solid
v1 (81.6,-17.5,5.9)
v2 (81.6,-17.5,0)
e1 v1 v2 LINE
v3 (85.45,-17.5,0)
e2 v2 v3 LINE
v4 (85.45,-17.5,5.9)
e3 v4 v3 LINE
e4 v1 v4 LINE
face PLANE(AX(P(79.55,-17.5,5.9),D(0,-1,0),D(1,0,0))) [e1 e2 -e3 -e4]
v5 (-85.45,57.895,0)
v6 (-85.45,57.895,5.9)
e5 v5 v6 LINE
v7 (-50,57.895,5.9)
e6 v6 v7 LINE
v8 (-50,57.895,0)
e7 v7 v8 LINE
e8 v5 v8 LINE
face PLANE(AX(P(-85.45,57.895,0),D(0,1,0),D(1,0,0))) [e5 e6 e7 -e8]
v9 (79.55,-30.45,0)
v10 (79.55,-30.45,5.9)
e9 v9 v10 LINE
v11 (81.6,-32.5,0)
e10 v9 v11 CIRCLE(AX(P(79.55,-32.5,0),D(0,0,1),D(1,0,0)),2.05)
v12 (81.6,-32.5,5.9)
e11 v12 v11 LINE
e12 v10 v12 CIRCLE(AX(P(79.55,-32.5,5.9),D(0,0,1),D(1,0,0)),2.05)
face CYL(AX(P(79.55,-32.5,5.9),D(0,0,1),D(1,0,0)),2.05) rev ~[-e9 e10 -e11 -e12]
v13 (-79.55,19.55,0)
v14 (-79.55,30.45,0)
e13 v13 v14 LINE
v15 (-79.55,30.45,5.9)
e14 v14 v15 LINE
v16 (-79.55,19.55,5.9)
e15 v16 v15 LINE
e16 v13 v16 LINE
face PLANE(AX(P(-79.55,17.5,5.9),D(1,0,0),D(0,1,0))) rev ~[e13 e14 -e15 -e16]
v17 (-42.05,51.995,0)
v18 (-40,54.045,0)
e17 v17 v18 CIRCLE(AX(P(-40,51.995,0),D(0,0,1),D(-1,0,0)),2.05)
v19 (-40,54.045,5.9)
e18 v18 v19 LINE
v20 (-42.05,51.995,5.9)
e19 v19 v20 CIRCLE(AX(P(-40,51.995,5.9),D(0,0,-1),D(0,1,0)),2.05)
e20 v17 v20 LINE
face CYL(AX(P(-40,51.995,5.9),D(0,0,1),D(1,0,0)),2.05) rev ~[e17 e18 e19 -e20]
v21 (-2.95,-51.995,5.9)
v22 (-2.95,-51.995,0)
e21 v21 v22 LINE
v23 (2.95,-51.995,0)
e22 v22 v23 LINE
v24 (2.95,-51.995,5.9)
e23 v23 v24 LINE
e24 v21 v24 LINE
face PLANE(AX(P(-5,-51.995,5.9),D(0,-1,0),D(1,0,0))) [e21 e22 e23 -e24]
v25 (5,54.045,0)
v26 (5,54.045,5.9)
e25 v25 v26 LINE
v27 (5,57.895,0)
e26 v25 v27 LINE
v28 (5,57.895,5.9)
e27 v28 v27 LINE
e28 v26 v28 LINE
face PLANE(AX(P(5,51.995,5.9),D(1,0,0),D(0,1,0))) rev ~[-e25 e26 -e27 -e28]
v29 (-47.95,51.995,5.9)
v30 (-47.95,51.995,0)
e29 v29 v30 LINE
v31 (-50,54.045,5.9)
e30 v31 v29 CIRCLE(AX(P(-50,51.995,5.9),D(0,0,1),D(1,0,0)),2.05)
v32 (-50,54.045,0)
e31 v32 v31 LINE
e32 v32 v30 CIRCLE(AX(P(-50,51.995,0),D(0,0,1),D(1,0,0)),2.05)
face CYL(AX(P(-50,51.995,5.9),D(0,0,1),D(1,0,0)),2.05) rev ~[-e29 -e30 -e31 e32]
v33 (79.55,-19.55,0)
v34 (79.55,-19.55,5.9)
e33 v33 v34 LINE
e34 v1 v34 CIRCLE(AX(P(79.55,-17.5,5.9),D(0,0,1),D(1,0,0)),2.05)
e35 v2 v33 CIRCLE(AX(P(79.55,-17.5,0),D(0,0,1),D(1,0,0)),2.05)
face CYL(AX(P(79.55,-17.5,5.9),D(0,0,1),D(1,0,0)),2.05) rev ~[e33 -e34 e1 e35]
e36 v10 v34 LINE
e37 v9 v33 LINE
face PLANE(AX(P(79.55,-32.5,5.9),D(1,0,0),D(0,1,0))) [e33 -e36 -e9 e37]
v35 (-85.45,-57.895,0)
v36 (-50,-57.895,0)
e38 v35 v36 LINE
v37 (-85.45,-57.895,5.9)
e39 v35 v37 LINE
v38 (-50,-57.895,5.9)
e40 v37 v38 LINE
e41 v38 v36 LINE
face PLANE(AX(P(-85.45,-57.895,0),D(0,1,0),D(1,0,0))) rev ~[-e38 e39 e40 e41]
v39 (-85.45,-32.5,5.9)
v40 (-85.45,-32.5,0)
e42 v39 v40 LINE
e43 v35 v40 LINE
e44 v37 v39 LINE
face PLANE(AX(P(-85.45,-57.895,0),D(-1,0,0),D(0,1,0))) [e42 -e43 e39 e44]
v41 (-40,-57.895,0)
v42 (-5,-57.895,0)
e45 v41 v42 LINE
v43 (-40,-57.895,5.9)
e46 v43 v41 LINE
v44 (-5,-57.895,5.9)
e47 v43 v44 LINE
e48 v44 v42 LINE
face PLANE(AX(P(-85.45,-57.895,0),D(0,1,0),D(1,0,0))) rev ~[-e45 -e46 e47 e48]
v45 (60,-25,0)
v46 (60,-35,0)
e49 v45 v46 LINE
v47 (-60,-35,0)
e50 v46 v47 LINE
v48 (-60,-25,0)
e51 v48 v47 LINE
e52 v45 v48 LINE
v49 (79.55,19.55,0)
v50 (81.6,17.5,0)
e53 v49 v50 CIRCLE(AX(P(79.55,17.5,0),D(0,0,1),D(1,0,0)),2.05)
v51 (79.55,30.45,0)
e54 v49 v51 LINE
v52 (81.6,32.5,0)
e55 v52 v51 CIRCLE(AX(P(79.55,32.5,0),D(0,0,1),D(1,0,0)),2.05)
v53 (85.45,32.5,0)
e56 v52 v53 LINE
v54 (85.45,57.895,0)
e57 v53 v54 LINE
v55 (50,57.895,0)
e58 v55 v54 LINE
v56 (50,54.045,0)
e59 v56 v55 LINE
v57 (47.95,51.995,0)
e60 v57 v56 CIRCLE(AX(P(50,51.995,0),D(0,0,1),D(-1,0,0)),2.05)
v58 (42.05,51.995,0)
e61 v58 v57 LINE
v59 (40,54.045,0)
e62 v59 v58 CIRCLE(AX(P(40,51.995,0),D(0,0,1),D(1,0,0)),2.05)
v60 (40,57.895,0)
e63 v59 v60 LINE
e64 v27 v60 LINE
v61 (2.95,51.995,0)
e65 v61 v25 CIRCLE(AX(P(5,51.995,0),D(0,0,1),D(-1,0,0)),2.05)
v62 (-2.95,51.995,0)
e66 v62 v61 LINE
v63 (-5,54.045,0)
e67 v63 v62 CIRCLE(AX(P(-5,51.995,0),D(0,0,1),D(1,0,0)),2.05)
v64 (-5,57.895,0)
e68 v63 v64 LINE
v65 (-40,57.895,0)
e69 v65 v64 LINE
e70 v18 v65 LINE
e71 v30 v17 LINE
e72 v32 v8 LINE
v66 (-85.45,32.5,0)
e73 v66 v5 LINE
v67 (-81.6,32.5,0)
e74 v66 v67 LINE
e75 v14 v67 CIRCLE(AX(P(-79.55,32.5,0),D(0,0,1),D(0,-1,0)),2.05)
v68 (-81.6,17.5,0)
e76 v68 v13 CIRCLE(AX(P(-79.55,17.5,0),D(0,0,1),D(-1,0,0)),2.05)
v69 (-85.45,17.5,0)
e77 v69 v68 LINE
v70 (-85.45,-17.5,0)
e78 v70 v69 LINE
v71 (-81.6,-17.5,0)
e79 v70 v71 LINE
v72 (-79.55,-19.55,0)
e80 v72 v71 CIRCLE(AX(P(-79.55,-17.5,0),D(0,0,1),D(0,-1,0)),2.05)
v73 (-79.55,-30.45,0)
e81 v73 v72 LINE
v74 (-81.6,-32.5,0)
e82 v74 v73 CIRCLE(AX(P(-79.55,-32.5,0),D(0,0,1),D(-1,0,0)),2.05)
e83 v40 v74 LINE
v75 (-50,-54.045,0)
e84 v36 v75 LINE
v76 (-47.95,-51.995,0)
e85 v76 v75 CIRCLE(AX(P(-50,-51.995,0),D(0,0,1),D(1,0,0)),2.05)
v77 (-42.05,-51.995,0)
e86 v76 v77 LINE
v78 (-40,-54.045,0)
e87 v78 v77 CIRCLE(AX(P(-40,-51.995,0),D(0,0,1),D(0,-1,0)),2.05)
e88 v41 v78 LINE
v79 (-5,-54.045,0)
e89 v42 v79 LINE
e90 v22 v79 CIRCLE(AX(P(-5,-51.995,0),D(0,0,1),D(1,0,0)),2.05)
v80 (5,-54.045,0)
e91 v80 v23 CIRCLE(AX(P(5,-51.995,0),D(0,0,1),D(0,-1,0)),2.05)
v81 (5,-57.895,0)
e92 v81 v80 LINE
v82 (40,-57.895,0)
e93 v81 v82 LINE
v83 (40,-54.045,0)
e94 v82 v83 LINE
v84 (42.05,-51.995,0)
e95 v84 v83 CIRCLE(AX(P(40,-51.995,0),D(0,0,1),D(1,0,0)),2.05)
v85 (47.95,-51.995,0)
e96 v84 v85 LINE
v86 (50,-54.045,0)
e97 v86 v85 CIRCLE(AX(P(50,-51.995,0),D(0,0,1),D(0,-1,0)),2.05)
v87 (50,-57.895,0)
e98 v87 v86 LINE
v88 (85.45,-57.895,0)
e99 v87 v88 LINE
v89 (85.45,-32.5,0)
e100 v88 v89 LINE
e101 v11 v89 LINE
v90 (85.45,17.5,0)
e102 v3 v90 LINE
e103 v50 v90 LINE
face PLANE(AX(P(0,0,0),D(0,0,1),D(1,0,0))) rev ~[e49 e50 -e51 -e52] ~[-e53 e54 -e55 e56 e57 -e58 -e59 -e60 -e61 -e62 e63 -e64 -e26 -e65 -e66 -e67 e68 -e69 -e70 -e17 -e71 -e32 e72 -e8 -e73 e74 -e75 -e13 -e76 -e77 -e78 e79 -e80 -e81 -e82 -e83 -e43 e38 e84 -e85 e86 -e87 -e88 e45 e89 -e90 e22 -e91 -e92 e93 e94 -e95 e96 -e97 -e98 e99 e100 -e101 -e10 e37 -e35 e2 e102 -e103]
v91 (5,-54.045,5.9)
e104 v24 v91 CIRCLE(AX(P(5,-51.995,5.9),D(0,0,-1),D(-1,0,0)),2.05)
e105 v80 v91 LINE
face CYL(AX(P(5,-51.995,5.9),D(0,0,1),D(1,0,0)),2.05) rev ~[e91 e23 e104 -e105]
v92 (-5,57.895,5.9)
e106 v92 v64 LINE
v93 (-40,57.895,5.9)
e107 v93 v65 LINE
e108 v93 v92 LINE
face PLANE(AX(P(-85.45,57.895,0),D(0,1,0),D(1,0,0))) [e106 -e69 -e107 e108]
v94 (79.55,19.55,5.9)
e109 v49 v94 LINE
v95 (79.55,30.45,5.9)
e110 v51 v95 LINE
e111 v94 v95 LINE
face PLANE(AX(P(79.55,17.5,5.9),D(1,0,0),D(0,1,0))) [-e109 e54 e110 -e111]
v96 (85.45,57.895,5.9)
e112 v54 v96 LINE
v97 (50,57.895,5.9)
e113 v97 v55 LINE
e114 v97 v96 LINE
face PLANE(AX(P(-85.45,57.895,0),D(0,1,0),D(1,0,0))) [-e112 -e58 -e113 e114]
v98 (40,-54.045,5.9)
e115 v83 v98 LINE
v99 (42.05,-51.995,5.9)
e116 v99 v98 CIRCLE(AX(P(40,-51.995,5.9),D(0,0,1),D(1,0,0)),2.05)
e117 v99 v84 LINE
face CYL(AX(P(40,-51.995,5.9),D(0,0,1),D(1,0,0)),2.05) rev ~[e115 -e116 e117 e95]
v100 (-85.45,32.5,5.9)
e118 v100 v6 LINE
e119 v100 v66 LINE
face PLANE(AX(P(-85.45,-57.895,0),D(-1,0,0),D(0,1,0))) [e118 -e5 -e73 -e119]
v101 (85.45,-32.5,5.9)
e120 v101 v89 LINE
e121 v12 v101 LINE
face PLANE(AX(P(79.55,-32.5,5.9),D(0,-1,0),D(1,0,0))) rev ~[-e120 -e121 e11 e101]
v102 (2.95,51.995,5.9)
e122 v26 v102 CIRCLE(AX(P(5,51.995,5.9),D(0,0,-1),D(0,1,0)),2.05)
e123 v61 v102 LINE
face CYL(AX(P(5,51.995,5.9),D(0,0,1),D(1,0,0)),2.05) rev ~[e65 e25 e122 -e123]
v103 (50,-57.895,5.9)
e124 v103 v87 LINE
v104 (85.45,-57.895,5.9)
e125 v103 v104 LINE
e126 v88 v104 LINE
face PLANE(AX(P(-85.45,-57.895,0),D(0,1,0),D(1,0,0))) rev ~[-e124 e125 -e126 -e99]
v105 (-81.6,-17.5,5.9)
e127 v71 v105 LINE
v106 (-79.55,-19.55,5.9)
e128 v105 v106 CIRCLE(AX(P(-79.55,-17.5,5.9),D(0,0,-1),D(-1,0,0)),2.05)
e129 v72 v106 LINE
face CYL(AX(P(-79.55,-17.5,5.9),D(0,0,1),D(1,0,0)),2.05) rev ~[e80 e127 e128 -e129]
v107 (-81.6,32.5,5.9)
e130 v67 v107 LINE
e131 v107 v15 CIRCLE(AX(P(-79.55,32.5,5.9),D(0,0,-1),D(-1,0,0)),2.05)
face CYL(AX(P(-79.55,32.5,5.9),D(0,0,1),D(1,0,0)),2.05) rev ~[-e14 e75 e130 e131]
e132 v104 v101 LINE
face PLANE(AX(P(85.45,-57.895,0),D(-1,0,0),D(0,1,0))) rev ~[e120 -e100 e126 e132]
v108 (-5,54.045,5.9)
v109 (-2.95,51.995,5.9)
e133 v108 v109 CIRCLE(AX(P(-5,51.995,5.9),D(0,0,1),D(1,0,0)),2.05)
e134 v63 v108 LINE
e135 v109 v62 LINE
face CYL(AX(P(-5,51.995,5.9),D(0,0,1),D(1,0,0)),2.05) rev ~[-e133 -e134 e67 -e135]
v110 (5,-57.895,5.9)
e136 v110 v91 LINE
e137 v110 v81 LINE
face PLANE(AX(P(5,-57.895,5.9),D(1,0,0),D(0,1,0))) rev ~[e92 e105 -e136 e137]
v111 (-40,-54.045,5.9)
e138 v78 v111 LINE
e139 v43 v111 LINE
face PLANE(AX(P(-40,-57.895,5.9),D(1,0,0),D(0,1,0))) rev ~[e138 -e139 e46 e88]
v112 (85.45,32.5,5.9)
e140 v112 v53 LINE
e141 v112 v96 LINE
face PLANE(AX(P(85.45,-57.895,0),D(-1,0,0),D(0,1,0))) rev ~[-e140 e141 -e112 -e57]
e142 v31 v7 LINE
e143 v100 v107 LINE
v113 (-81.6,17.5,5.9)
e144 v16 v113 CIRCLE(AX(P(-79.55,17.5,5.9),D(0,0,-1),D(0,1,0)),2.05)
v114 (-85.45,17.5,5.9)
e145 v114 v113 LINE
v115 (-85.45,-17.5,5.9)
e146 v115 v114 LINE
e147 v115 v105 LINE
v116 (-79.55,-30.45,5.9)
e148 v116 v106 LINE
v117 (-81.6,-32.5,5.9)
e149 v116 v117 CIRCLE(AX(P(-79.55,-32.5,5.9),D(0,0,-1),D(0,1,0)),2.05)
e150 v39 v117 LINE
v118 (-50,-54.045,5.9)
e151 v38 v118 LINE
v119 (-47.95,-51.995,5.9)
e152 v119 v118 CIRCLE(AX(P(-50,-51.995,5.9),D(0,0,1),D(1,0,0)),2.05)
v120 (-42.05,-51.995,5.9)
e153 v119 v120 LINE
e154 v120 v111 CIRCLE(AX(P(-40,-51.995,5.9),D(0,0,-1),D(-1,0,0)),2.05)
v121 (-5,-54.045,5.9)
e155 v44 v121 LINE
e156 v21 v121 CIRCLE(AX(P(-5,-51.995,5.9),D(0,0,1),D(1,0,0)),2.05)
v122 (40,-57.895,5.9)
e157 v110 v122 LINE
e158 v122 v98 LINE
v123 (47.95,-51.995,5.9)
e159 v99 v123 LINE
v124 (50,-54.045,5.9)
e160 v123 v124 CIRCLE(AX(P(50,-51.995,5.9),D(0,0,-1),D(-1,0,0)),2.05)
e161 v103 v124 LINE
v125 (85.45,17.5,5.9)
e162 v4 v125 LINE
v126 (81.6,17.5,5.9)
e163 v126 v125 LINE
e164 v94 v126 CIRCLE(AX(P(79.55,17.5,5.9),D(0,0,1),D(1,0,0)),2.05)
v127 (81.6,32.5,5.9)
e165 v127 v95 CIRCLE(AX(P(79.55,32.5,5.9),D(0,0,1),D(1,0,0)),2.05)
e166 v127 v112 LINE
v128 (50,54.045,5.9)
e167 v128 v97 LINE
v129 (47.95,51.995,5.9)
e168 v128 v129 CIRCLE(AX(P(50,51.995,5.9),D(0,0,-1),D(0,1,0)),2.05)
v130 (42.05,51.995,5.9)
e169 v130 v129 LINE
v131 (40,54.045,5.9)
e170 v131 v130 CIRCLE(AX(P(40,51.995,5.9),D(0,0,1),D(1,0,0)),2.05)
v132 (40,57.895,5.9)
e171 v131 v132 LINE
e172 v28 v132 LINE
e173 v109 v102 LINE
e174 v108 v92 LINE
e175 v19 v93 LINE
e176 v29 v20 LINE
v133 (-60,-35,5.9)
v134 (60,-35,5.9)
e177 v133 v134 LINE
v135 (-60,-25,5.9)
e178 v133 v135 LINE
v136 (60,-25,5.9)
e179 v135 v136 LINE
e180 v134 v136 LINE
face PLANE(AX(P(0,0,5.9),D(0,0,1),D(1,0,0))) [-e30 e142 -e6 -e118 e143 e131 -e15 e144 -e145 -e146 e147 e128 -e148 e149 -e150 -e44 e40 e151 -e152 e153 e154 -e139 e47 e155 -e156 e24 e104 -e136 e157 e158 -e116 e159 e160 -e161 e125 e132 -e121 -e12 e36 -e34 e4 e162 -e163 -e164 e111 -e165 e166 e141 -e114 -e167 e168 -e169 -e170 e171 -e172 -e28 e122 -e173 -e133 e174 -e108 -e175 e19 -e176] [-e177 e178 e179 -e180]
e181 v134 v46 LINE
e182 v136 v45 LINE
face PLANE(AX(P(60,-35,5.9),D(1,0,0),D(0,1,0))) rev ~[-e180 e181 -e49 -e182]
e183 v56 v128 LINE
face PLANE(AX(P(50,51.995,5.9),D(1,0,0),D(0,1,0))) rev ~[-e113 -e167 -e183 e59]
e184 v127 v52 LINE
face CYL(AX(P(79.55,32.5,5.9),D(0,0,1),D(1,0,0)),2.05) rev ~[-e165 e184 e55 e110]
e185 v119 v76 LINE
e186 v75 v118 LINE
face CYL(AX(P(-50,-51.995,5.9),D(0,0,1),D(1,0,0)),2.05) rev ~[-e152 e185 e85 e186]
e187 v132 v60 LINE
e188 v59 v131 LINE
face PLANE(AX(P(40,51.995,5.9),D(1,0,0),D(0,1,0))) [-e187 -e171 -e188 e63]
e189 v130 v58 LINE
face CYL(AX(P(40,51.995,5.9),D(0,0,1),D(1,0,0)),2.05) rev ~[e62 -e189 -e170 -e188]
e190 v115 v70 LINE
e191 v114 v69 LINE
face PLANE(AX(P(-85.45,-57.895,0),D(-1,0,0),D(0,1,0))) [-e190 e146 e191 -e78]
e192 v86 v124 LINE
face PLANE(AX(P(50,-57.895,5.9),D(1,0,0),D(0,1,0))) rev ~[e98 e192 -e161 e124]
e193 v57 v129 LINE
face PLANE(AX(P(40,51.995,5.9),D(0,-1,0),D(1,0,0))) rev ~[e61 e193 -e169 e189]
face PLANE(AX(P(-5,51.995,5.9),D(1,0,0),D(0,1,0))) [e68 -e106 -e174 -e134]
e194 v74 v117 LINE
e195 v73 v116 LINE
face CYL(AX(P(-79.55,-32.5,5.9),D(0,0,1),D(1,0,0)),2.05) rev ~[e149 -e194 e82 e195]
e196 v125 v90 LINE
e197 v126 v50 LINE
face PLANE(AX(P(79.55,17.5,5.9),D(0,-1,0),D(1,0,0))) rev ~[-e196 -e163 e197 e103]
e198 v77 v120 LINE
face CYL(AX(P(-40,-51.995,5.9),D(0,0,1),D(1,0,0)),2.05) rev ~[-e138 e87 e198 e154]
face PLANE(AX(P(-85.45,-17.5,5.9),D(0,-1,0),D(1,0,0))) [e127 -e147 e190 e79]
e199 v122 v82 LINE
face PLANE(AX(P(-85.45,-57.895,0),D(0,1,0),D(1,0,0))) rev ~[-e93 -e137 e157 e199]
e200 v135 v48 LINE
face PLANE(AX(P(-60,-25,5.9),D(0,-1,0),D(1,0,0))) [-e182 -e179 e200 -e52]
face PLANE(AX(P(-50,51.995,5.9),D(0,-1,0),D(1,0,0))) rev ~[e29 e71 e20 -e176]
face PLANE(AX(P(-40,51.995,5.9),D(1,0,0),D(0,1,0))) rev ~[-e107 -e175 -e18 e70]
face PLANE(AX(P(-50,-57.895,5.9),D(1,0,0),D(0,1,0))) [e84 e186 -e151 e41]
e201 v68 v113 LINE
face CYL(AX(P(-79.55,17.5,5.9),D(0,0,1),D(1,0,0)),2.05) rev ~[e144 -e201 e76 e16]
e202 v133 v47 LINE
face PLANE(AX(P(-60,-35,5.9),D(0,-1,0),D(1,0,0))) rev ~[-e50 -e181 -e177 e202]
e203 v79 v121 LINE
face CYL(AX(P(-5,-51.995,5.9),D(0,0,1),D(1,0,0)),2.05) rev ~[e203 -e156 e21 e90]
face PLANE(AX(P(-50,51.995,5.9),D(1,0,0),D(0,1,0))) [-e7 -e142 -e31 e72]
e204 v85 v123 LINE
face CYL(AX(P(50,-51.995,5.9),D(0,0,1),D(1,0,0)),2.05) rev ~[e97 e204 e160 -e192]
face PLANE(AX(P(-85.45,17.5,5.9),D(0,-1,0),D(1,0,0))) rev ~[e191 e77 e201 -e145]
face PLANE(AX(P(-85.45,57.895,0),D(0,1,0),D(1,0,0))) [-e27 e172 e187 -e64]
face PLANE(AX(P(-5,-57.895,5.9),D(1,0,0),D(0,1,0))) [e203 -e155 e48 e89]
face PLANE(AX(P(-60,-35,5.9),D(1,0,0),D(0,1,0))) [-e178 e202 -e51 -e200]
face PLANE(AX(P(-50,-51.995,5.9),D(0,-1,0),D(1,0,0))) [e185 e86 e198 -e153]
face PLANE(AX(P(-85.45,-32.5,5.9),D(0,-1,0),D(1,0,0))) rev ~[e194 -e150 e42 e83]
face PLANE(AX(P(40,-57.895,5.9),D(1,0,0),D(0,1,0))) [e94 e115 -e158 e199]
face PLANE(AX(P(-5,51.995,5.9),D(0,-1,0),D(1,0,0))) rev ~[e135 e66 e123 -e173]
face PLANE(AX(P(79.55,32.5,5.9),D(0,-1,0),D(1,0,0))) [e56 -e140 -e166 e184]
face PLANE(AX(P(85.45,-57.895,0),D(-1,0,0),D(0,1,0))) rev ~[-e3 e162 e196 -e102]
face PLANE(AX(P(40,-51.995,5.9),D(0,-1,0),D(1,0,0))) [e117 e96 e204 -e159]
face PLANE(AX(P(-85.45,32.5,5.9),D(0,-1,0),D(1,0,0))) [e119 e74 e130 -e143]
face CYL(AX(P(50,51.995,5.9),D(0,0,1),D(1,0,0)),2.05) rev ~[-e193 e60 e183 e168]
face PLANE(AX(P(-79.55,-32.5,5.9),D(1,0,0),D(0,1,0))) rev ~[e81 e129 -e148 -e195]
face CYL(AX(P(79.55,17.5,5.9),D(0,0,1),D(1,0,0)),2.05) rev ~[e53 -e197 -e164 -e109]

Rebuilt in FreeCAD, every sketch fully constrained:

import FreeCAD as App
import Part
import Sketcher
Q = App.Units.Quantity

doc = App.newDocument("Part")
body = doc.addObject("PartDesign::Body", "Body")

sketch1 = body.newObject("Sketcher::SketchObject", "Sketch")
sketch1.AttachmentSupport = (doc.getObject("XY_Plane"), [""])
sketch1.MapMode = "FlatFace"
sketch1.addGeometry([
    Part.LineSegment(App.Vector(-85.45, 57.895, 0), App.Vector(-85.45, -57.895, 0)),
    Part.LineSegment(App.Vector(-85.45, -57.895, 0), App.Vector(85.45, -57.895, 0)),
    Part.LineSegment(App.Vector(85.45, -57.895, 0), App.Vector(85.45, 57.895, 0)),
    Part.LineSegment(App.Vector(85.45, 57.895, 0), App.Vector(-85.45, 57.895, 0)),
], False)
sketch1.addConstraint([
    Sketcher.Constraint("Coincident", 0, 2, 1, 1),
    Sketcher.Constraint("Coincident", 1, 2, 2, 1),
    Sketcher.Constraint("Coincident", 2, 2, 3, 1),
    Sketcher.Constraint("Coincident", 3, 2, 0, 1),
    Sketcher.Constraint("Vertical", 0),
    Sketcher.Constraint("Horizontal", 1),
    Sketcher.Constraint("Vertical", 2),
    Sketcher.Constraint("Horizontal", 3),
    Sketcher.Constraint("Symmetric", 0, 2, 2, 2, -1, 1),
    Sketcher.Constraint("DistanceX", 1, 1, 1, 2, Q("170.9 mm")),
    Sketcher.Constraint("DistanceY", 0, 2, 0, 1, Q("115.79 mm")),
])
pad1 = body.newObject("PartDesign::Pad", "Pad")
pad1.Profile = sketch1
pad1.Length = 5.9

sketch2 = body.newObject("Sketcher::SketchObject", "Sketch001")
sketch2.AttachmentSupport = (doc.getObject("XY_Plane"), [""])
sketch2.MapMode = "FlatFace"
sketch2.AttachmentOffset = App.Placement(App.Vector(0, 0, 5.9), App.Rotation())
sketch2.addGeometry([
    Part.LineSegment(App.Vector(-85.45, 32.5, 0), App.Vector(-85.45, 17.5, 0)),
    Part.LineSegment(App.Vector(-85.45, 17.5, 0), App.Vector(-79.55, 17.5, 0)),
    Part.LineSegment(App.Vector(-79.55, 17.5, 0), App.Vector(-79.55, 32.5, 0)),
    Part.LineSegment(App.Vector(-79.55, 32.5, 0), App.Vector(-85.45, 32.5, 0)),
    Part.LineSegment(App.Vector(-85.45, -17.5, 0), App.Vector(-85.45, -32.5, 0)),
    Part.LineSegment(App.Vector(-85.45, -32.5, 0), App.Vector(-79.55, -32.5, 0)),
    Part.LineSegment(App.Vector(-79.55, -32.5, 0), App.Vector(-79.55, -17.5, 0)),
    Part.LineSegment(App.Vector(-79.55, -17.5, 0), App.Vector(-85.45, -17.5, 0)),
    Part.LineSegment(App.Vector(79.55, -17.5, 0), App.Vector(79.55, -32.5, 0)),
    Part.LineSegment(App.Vector(79.55, -32.5, 0), App.Vector(85.45, -32.5, 0)),
    Part.LineSegment(App.Vector(85.45, -32.5, 0), App.Vector(85.45, -17.5, 0)),
    Part.LineSegment(App.Vector(85.45, -17.5, 0), App.Vector(79.55, -17.5, 0)),
    Part.LineSegment(App.Vector(79.55, 32.5, 0), App.Vector(79.55, 17.5, 0)),
    Part.LineSegment(App.Vector(79.55, 17.5, 0), App.Vector(85.45, 17.5, 0)),
    Part.LineSegment(App.Vector(85.45, 17.5, 0), App.Vector(85.45, 32.5, 0)),
    Part.LineSegment(App.Vector(85.45, 32.5, 0), App.Vector(79.55, 32.5, 0)),
    Part.LineSegment(App.Vector(-50, 57.895, 0), App.Vector(-50, 51.995, 0)),
    Part.LineSegment(App.Vector(-50, 51.995, 0), App.Vector(-40, 51.995, 0)),
    Part.LineSegment(App.Vector(-40, 51.995, 0), App.Vector(-40, 57.895, 0)),
    Part.LineSegment(App.Vector(-40, 57.895, 0), App.Vector(-50, 57.895, 0)),
    Part.LineSegment(App.Vector(-5, 57.895, 0), App.Vector(-5, 51.995, 0)),
    Part.LineSegment(App.Vector(-5, 51.995, 0), App.Vector(5, 51.995, 0)),
    Part.LineSegment(App.Vector(5, 51.995, 0), App.Vector(5, 57.895, 0)),
    Part.LineSegment(App.Vector(5, 57.895, 0), App.Vector(-5, 57.895, 0)),
    Part.LineSegment(App.Vector(40, 57.895, 0), App.Vector(40, 51.995, 0)),
    Part.LineSegment(App.Vector(40, 51.995, 0), App.Vector(50, 51.995, 0)),
    Part.LineSegment(App.Vector(50, 51.995, 0), App.Vector(50, 57.895, 0)),
    Part.LineSegment(App.Vector(50, 57.895, 0), App.Vector(40, 57.895, 0)),
    Part.LineSegment(App.Vector(40, -51.995, 0), App.Vector(40, -57.895, 0)),
    Part.LineSegment(App.Vector(40, -57.895, 0), App.Vector(50, -57.895, 0)),
    Part.LineSegment(App.Vector(50, -57.895, 0), App.Vector(50, -51.995, 0)),
    Part.LineSegment(App.Vector(50, -51.995, 0), App.Vector(40, -51.995, 0)),
    Part.LineSegment(App.Vector(-5, -51.995, 0), App.Vector(-5, -57.895, 0)),
    Part.LineSegment(App.Vector(-5, -57.895, 0), App.Vector(5, -57.895, 0)),
    Part.LineSegment(App.Vector(5, -57.895, 0), App.Vector(5, -51.995, 0)),
    Part.LineSegment(App.Vector(5, -51.995, 0), App.Vector(-5, -51.995, 0)),
    Part.LineSegment(App.Vector(-50, -51.995, 0), App.Vector(-50, -57.895, 0)),
    Part.LineSegment(App.Vector(-50, -57.895, 0), App.Vector(-40, -57.895, 0)),
    Part.LineSegment(App.Vector(-40, -57.895, 0), App.Vector(-40, -51.995, 0)),
    Part.LineSegment(App.Vector(-40, -51.995, 0), App.Vector(-50, -51.995, 0)),
], False)
sketch2.addConstraint([
    Sketcher.Constraint("Coincident", 0, 2, 1, 1),
    Sketcher.Constraint("Coincident", 1, 2, 2, 1),
    Sketcher.Constraint("Coincident", 2, 2, 3, 1),
    Sketcher.Constraint("Coincident", 3, 2, 0, 1),
    Sketcher.Constraint("Coincident", 4, 2, 5, 1),
    Sketcher.Constraint("Coincident", 5, 2, 6, 1),
    Sketcher.Constraint("Coincident", 6, 2, 7, 1),
    Sketcher.Constraint("Coincident", 7, 2, 4, 1),
    Sketcher.Constraint("Coincident", 8, 2, 9, 1),
    Sketcher.Constraint("Coincident", 9, 2, 10, 1),
    Sketcher.Constraint("Coincident", 10, 2, 11, 1),
    Sketcher.Constraint("Coincident", 11, 2, 8, 1),
    Sketcher.Constraint("Coincident", 12, 2, 13, 1),
    Sketcher.Constraint("Coincident", 13, 2, 14, 1),
    Sketcher.Constraint("Coincident", 14, 2, 15, 1),
    Sketcher.Constraint("Coincident", 15, 2, 12, 1),
    Sketcher.Constraint("Coincident", 16, 2, 17, 1),
    Sketcher.Constraint("Coincident", 17, 2, 18, 1),
    Sketcher.Constraint("Coincident", 18, 2, 19, 1),
    Sketcher.Constraint("Coincident", 19, 2, 16, 1),
    Sketcher.Constraint("Coincident", 20, 2, 21, 1),
    Sketcher.Constraint("Coincident", 21, 2, 22, 1),
    Sketcher.Constraint("Coincident", 22, 2, 23, 1),
    Sketcher.Constraint("Coincident", 23, 2, 20, 1),
    Sketcher.Constraint("Coincident", 24, 2, 25, 1),
    Sketcher.Constraint("Coincident", 25, 2, 26, 1),
    Sketcher.Constraint("Coincident", 26, 2, 27, 1),
    Sketcher.Constraint("Coincident", 27, 2, 24, 1),
    Sketcher.Constraint("Coincident", 28, 2, 29, 1),
    Sketcher.Constraint("Coincident", 29, 2, 30, 1),
    Sketcher.Constraint("Coincident", 30, 2, 31, 1),
    Sketcher.Constraint("Coincident", 31, 2, 28, 1),
    Sketcher.Constraint("Coincident", 32, 2, 33, 1),
    Sketcher.Constraint("Coincident", 33, 2, 34, 1),
    Sketcher.Constraint("Coincident", 34, 2, 35, 1),
    Sketcher.Constraint("Coincident", 35, 2, 32, 1),
    Sketcher.Constraint("Coincident", 36, 2, 37, 1),
    Sketcher.Constraint("Coincident", 37, 2, 38, 1),
    Sketcher.Constraint("Coincident", 38, 2, 39, 1),
    Sketcher.Constraint("Coincident", 39, 2, 36, 1),
    Sketcher.Constraint("Vertical", 0),
    Sketcher.Constraint("Horizontal", 1),
    Sketcher.Constraint("Vertical", 2),
    Sketcher.Constraint("Horizontal", 3),
    Sketcher.Constraint("Vertical", 4),
    Sketcher.Constraint("Horizontal", 5),
    Sketcher.Constraint("Vertical", 6),
    Sketcher.Constraint("Horizontal", 7),
    Sketcher.Constraint("Vertical", 8),
    Sketcher.Constraint("Horizontal", 9),
    Sketcher.Constraint("Vertical", 10),
    Sketcher.Constraint("Horizontal", 11),
    Sketcher.Constraint("Vertical", 12),
    Sketcher.Constraint("Horizontal", 13),
    Sketcher.Constraint("Vertical", 14),
    Sketcher.Constraint("Horizontal", 15),
    Sketcher.Constraint("Vertical", 16),
    Sketcher.Constraint("Horizontal", 17),
    Sketcher.Constraint("Vertical", 18),
    Sketcher.Constraint("Horizontal", 19),
    Sketcher.Constraint("Vertical", 20),
    Sketcher.Constraint("Horizontal", 21),
    Sketcher.Constraint("Vertical", 22),
    Sketcher.Constraint("Horizontal", 23),
    Sketcher.Constraint("Vertical", 24),
    Sketcher.Constraint("Horizontal", 25),
    Sketcher.Constraint("Vertical", 26),
    Sketcher.Constraint("Horizontal", 27),
    Sketcher.Constraint("Vertical", 28),
    Sketcher.Constraint("Horizontal", 29),
    Sketcher.Constraint("Vertical", 30),
    Sketcher.Constraint("Horizontal", 31),
    Sketcher.Constraint("Vertical", 32),
    Sketcher.Constraint("Horizontal", 33),
    Sketcher.Constraint("Vertical", 34),
    Sketcher.Constraint("Horizontal", 35),
    Sketcher.Constraint("Vertical", 36),
    Sketcher.Constraint("Horizontal", 37),
    Sketcher.Constraint("Vertical", 38),
    Sketcher.Constraint("Horizontal", 39),
    Sketcher.Constraint("Symmetric", 2, 2, 8, 2, -1, 1),
    Sketcher.Constraint("Symmetric", 0, 2, 10, 2, -1, 1),
    Sketcher.Constraint("Symmetric", 6, 2, 12, 2, -1, 1),
    Sketcher.Constraint("Symmetric", 4, 2, 14, 2, -1, 1),
    Sketcher.Constraint("Symmetric", 18, 2, 28, 2, -1, 1),
    Sketcher.Constraint("Symmetric", 16, 2, 30, 2, -1, 1),
    Sketcher.Constraint("Symmetric", 22, 2, 32, 2, -1, 1),
    Sketcher.Constraint("Symmetric", 20, 2, 34, 2, -1, 1),
    Sketcher.Constraint("Symmetric", 26, 2, 36, 2, -1, 1),
    Sketcher.Constraint("Symmetric", 24, 2, 38, 2, -1, 1),
    Sketcher.Constraint("Symmetric", 5, 2, 8, 2, -2),
    Sketcher.Constraint("Symmetric", 7, 2, 10, 2, -2),
    Sketcher.Constraint("Symmetric", 17, 2, 24, 2, -2),
    Sketcher.Constraint("Symmetric", 19, 2, 26, 2, -2),
    Sketcher.Constraint("Horizontal", 17, 2, 20, 2),
    Sketcher.Constraint("Horizontal", 19, 2, 22, 2),
    Sketcher.Constraint("Vertical", 23, 2, 32, 2),
    Sketcher.Constraint("Equal", 19, 21),
    Sketcher.Constraint("Equal", 15, 16),
    Sketcher.Constraint("DistanceX", 17, 1, 17, 2, Q("10 mm")),
    Sketcher.Constraint("DistanceY", 0, 2, 0, 1, Q("15 mm")),
    Sketcher.Constraint("DistanceX", 1, 1, 1, 2, Q("5.9 mm")),
    Sketcher.Constraint("DistanceX", 16, 2, -1, 1, Q("50 mm")),
    Sketcher.Constraint("DistanceY", 4, 2, 0, 2, Q("50 mm")),
    Sketcher.Constraint("DistanceX", 4, 2, 8, 2, Q("165 mm")),
    Sketcher.Constraint("DistanceY", -1, 1, 16, 2, Q("51.995 mm")),
])
pocket1 = body.newObject("PartDesign::Pocket", "Pocket")
pocket1.Profile = sketch2
pocket1.Type = "ThroughAll"

sketch3 = body.newObject("Sketcher::SketchObject", "Sketch002")
sketch3.AttachmentSupport = (doc.getObject("XY_Plane"), [""])
sketch3.MapMode = "FlatFace"
sketch3.AttachmentOffset = App.Placement(App.Vector(0, 0, 5.9), App.Rotation())
sketch3.addGeometry([
    Part.LineSegment(App.Vector(-60, -25, 0), App.Vector(-60, -35, 0)),
    Part.LineSegment(App.Vector(-60, -35, 0), App.Vector(60, -35, 0)),
    Part.LineSegment(App.Vector(60, -35, 0), App.Vector(60, -25, 0)),
    Part.LineSegment(App.Vector(60, -25, 0), App.Vector(-60, -25, 0)),
], False)
sketch3.addConstraint([
    Sketcher.Constraint("Coincident", 0, 2, 1, 1),
    Sketcher.Constraint("Coincident", 1, 2, 2, 1),
    Sketcher.Constraint("Coincident", 2, 2, 3, 1),
    Sketcher.Constraint("Coincident", 3, 2, 0, 1),
    Sketcher.Constraint("Vertical", 0),
    Sketcher.Constraint("Horizontal", 1),
    Sketcher.Constraint("Vertical", 2),
    Sketcher.Constraint("Horizontal", 3),
    Sketcher.Constraint("DistanceX", 1, 1, 1, 2, Q("120 mm")),
    Sketcher.Constraint("DistanceY", 0, 2, 0, 1, Q("10 mm")),
    Sketcher.Constraint("DistanceX", 0, 2, -1, 1, Q("60 mm")),
    Sketcher.Constraint("DistanceY", 0, 2, -1, 1, Q("35 mm")),
])
pocket2 = body.newObject("PartDesign::Pocket", "Pocket001")
pocket2.Profile = sketch3
pocket2.Type = "UpToFirst"

sketch4 = body.newObject("Sketcher::SketchObject", "Sketch003")
sketch4.AttachmentSupport = (doc.getObject("XY_Plane"), [""])
sketch4.MapMode = "FlatFace"
sketch4.AttachmentOffset = App.Placement(App.Vector(0, 0, 5.9), App.Rotation())
sketch4.addGeometry(Part.Circle(App.Vector(-50, 51.995, 0), App.Vector(0, 0, 1), 2.05), False)
sketch4.addConstraint([
    Sketcher.Constraint("Diameter", 0, Q("4.1 mm")),
    Sketcher.Constraint("DistanceX", 0, 3, -1, 1, Q("50 mm")),
    Sketcher.Constraint("DistanceY", -1, 1, 0, 3, Q("51.995 mm")),
])
pocket3 = body.newObject("PartDesign::Pocket", "Pocket002")
pocket3.Profile = sketch4
pocket3.Type = "UpToFirst"

sketch5 = body.newObject("Sketcher::SketchObject", "Sketch004")
sketch5.AttachmentSupport = (doc.getObject("XY_Plane"), [""])
sketch5.MapMode = "FlatFace"
sketch5.AttachmentOffset = App.Placement(App.Vector(0, 0, 5.9), App.Rotation())
sketch5.addGeometry(Part.Circle(App.Vector(-40, 51.995, 0), App.Vector(0, 0, 1), 2.05), False)
sketch5.addConstraint([
    Sketcher.Constraint("Diameter", 0, Q("4.1 mm")),
    Sketcher.Constraint("DistanceX", 0, 3, -1, 1, Q("40 mm")),
    Sketcher.Constraint("DistanceY", -1, 1, 0, 3, Q("51.995 mm")),
])
pocket4 = body.newObject("PartDesign::Pocket", "Pocket003")
pocket4.Profile = sketch5
pocket4.Type = "UpToFirst"

sketch6 = body.newObject("Sketcher::SketchObject", "Sketch005")
sketch6.AttachmentSupport = (doc.getObject("XY_Plane"), [""])
sketch6.MapMode = "FlatFace"
sketch6.AttachmentOffset = App.Placement(App.Vector(0, 0, 5.9), App.Rotation())
sketch6.addGeometry(Part.Circle(App.Vector(-5, 51.995, 0), App.Vector(0, 0, 1), 2.05), False)
sketch6.addConstraint([
    Sketcher.Constraint("Diameter", 0, Q("4.1 mm")),
    Sketcher.Constraint("DistanceX", 0, 3, -1, 1, Q("5 mm")),
    Sketcher.Constraint("DistanceY", -1, 1, 0, 3, Q("51.995 mm")),
])
pocket5 = body.newObject("PartDesign::Pocket", "Pocket004")
pocket5.Profile = sketch6
pocket5.Type = "UpToFirst"

sketch7 = body.newObject("Sketcher::SketchObject", "Sketch006")
sketch7.AttachmentSupport = (doc.getObject("XY_Plane"), [""])
sketch7.MapMode = "FlatFace"
sketch7.AttachmentOffset = App.Placement(App.Vector(0, 0, 5.9), App.Rotation())
sketch7.addGeometry(Part.Circle(App.Vector(5, 51.995, 0), App.Vector(0, 0, 1), 2.05), False)
sketch7.addConstraint([
    Sketcher.Constraint("Diameter", 0, Q("4.1 mm")),
    Sketcher.Constraint("DistanceX", -1, 1, 0, 3, Q("5 mm")),
    Sketcher.Constraint("DistanceY", -1, 1, 0, 3, Q("51.995 mm")),
])
pocket6 = body.newObject("PartDesign::Pocket", "Pocket005")
pocket6.Profile = sketch7
pocket6.Type = "UpToFirst"

sketch8 = body.newObject("Sketcher::SketchObject", "Sketch007")
sketch8.AttachmentSupport = (doc.getObject("XY_Plane"), [""])
sketch8.MapMode = "FlatFace"
sketch8.AttachmentOffset = App.Placement(App.Vector(0, 0, 5.9), App.Rotation())
sketch8.addGeometry(Part.Circle(App.Vector(40, 51.995, 0), App.Vector(0, 0, 1), 2.05), False)
sketch8.addConstraint([
    Sketcher.Constraint("Diameter", 0, Q("4.1 mm")),
    Sketcher.Constraint("DistanceX", -1, 1, 0, 3, Q("40 mm")),
    Sketcher.Constraint("DistanceY", -1, 1, 0, 3, Q("51.995 mm")),
])
pocket7 = body.newObject("PartDesign::Pocket", "Pocket006")
pocket7.Profile = sketch8
pocket7.Type = "UpToFirst"

sketch9 = body.newObject("Sketcher::SketchObject", "Sketch008")
sketch9.AttachmentSupport = (doc.getObject("XY_Plane"), [""])
sketch9.MapMode = "FlatFace"
sketch9.AttachmentOffset = App.Placement(App.Vector(0, 0, 5.9), App.Rotation())
sketch9.addGeometry(Part.Circle(App.Vector(50, 51.995, 0), App.Vector(0, 0, 1), 2.05), False)
sketch9.addConstraint([
    Sketcher.Constraint("Diameter", 0, Q("4.1 mm")),
    Sketcher.Constraint("DistanceX", -1, 1, 0, 3, Q("50 mm")),
    Sketcher.Constraint("DistanceY", -1, 1, 0, 3, Q("51.995 mm")),
])
pocket8 = body.newObject("PartDesign::Pocket", "Pocket007")
pocket8.Profile = sketch9
pocket8.Type = "UpToFirst"

sketch10 = body.newObject("Sketcher::SketchObject", "Sketch009")
sketch10.AttachmentSupport = (doc.getObject("XY_Plane"), [""])
sketch10.MapMode = "FlatFace"
sketch10.AttachmentOffset = App.Placement(App.Vector(0, 0, 5.9), App.Rotation())
sketch10.addGeometry(Part.Circle(App.Vector(79.55, 32.5, 0), App.Vector(0, 0, 1), 2.05), False)
sketch10.addConstraint([
    Sketcher.Constraint("Diameter", 0, Q("4.1 mm")),
    Sketcher.Constraint("DistanceY", -1, 1, 0, 3, Q("32.5 mm")),
    Sketcher.Constraint("DistanceX", -1, 1, 0, 3, Q("79.55 mm")),
])
pocket9 = body.newObject("PartDesign::Pocket", "Pocket008")
pocket9.Profile = sketch10
pocket9.Type = "UpToFirst"

sketch11 = body.newObject("Sketcher::SketchObject", "Sketch010")
sketch11.AttachmentSupport = (doc.getObject("XY_Plane"), [""])
sketch11.MapMode = "FlatFace"
sketch11.AttachmentOffset = App.Placement(App.Vector(0, 0, 5.9), App.Rotation())
sketch11.addGeometry(Part.Circle(App.Vector(79.55, 17.5, 0), App.Vector(0, 0, 1), 2.05), False)
sketch11.addConstraint([
    Sketcher.Constraint("Diameter", 0, Q("4.1 mm")),
    Sketcher.Constraint("DistanceY", -1, 1, 0, 3, Q("17.5 mm")),
    Sketcher.Constraint("DistanceX", -1, 1, 0, 3, Q("79.55 mm")),
])
pocket10 = body.newObject("PartDesign::Pocket", "Pocket009")
pocket10.Profile = sketch11
pocket10.Type = "UpToFirst"

sketch12 = body.newObject("Sketcher::SketchObject", "Sketch011")
sketch12.AttachmentSupport = (doc.getObject("XY_Plane"), [""])
sketch12.MapMode = "FlatFace"
sketch12.AttachmentOffset = App.Placement(App.Vector(0, 0, 5.9), App.Rotation())
sketch12.addGeometry(Part.Circle(App.Vector(79.55, -17.5, 0), App.Vector(0, 0, 1), 2.05), False)
sketch12.addConstraint([
    Sketcher.Constraint("Diameter", 0, Q("4.1 mm")),
    Sketcher.Constraint("DistanceY", 0, 3, -1, 1, Q("17.5 mm")),
    Sketcher.Constraint("DistanceX", -1, 1, 0, 3, Q("79.55 mm")),
])
pocket11 = body.newObject("PartDesign::Pocket", "Pocket010")
pocket11.Profile = sketch12
pocket11.Type = "UpToFirst"

sketch13 = body.newObject("Sketcher::SketchObject", "Sketch012")
sketch13.AttachmentSupport = (doc.getObject("XY_Plane"), [""])
sketch13.MapMode = "FlatFace"
sketch13.AttachmentOffset = App.Placement(App.Vector(0, 0, 5.9), App.Rotation())
sketch13.addGeometry(Part.Circle(App.Vector(79.55, -32.5, 0), App.Vector(0, 0, 1), 2.05), False)
sketch13.addConstraint([
    Sketcher.Constraint("Diameter", 0, Q("4.1 mm")),
    Sketcher.Constraint("DistanceY", 0, 3, -1, 1, Q("32.5 mm")),
    Sketcher.Constraint("DistanceX", -1, 1, 0, 3, Q("79.55 mm")),
])
pocket12 = body.newObject("PartDesign::Pocket", "Pocket011")
pocket12.Profile = sketch13
pocket12.Type = "UpToFirst"

sketch14 = body.newObject("Sketcher::SketchObject", "Sketch013")
sketch14.AttachmentSupport = (doc.getObject("XY_Plane"), [""])
sketch14.MapMode = "FlatFace"
sketch14.AttachmentOffset = App.Placement(App.Vector(0, 0, 5.9), App.Rotation())
sketch14.addGeometry(Part.Circle(App.Vector(-40, -51.995, 0), App.Vector(0, 0, 1), 2.05), False)
sketch14.addConstraint([
    Sketcher.Constraint("Diameter", 0, Q("4.1 mm")),
    Sketcher.Constraint("DistanceX", 0, 3, -1, 1, Q("40 mm")),
    Sketcher.Constraint("DistanceY", 0, 3, -1, 1, Q("51.995 mm")),
])
pocket13 = body.newObject("PartDesign::Pocket", "Pocket012")
pocket13.Profile = sketch14
pocket13.Type = "UpToFirst"

sketch15 = body.newObject("Sketcher::SketchObject", "Sketch014")
sketch15.AttachmentSupport = (doc.getObject("XY_Plane"), [""])
sketch15.MapMode = "FlatFace"
sketch15.AttachmentOffset = App.Placement(App.Vector(0, 0, 5.9), App.Rotation())
sketch15.addGeometry(Part.Circle(App.Vector(-5, -51.995, 0), App.Vector(0, 0, 1), 2.05), False)
sketch15.addConstraint([
    Sketcher.Constraint("Diameter", 0, Q("4.1 mm")),
    Sketcher.Constraint("DistanceX", 0, 3, -1, 1, Q("5 mm")),
    Sketcher.Constraint("DistanceY", 0, 3, -1, 1, Q("51.995 mm")),
])
pocket14 = body.newObject("PartDesign::Pocket", "Pocket013")
pocket14.Profile = sketch15
pocket14.Type = "UpToFirst"

sketch16 = body.newObject("Sketcher::SketchObject", "Sketch015")
sketch16.AttachmentSupport = (doc.getObject("XY_Plane"), [""])
sketch16.MapMode = "FlatFace"
sketch16.AttachmentOffset = App.Placement(App.Vector(0, 0, 5.9), App.Rotation())
sketch16.addGeometry(Part.Circle(App.Vector(5, -51.995, 0), App.Vector(0, 0, 1), 2.05), False)
sketch16.addConstraint([
    Sketcher.Constraint("Diameter", 0, Q("4.1 mm")),
    Sketcher.Constraint("DistanceX", -1, 1, 0, 3, Q("5 mm")),
    Sketcher.Constraint("DistanceY", 0, 3, -1, 1, Q("51.995 mm")),
])
pocket15 = body.newObject("PartDesign::Pocket", "Pocket014")
pocket15.Profile = sketch16
pocket15.Type = "UpToFirst"

sketch17 = body.newObject("Sketcher::SketchObject", "Sketch016")
sketch17.AttachmentSupport = (doc.getObject("XY_Plane"), [""])
sketch17.MapMode = "FlatFace"
sketch17.AttachmentOffset = App.Placement(App.Vector(0, 0, 5.9), App.Rotation())
sketch17.addGeometry(Part.Circle(App.Vector(40, -51.995, 0), App.Vector(0, 0, 1), 2.05), False)
sketch17.addConstraint([
    Sketcher.Constraint("Diameter", 0, Q("4.1 mm")),
    Sketcher.Constraint("DistanceX", -1, 1, 0, 3, Q("40 mm")),
    Sketcher.Constraint("DistanceY", 0, 3, -1, 1, Q("51.995 mm")),
])
pocket16 = body.newObject("PartDesign::Pocket", "Pocket015")
pocket16.Profile = sketch17
pocket16.Type = "UpToFirst"

sketch18 = body.newObject("Sketcher::SketchObject", "Sketch017")
sketch18.AttachmentSupport = (doc.getObject("XY_Plane"), [""])
sketch18.MapMode = "FlatFace"
sketch18.AttachmentOffset = App.Placement(App.Vector(0, 0, 5.9), App.Rotation())
sketch18.addGeometry(Part.Circle(App.Vector(50, -51.995, 0), App.Vector(0, 0, 1), 2.05), False)
sketch18.addConstraint([
    Sketcher.Constraint("Diameter", 0, Q("4.1 mm")),
    Sketcher.Constraint("DistanceX", -1, 1, 0, 3, Q("50 mm")),
    Sketcher.Constraint("DistanceY", 0, 3, -1, 1, Q("51.995 mm")),
])
pocket17 = body.newObject("PartDesign::Pocket", "Pocket016")
pocket17.Profile = sketch18
pocket17.Type = "UpToFirst"

sketch19 = body.newObject("Sketcher::SketchObject", "Sketch018")
sketch19.AttachmentSupport = (doc.getObject("XY_Plane"), [""])
sketch19.MapMode = "FlatFace"
sketch19.AttachmentOffset = App.Placement(App.Vector(0, 0, 5.9), App.Rotation())
sketch19.addGeometry(Part.Circle(App.Vector(-50, -51.995, 0), App.Vector(0, 0, 1), 2.05), False)
sketch19.addConstraint([
    Sketcher.Constraint("Diameter", 0, Q("4.1 mm")),
    Sketcher.Constraint("DistanceX", 0, 3, -1, 1, Q("50 mm")),
    Sketcher.Constraint("DistanceY", 0, 3, -1, 1, Q("51.995 mm")),
])
pocket18 = body.newObject("PartDesign::Pocket", "Pocket017")
pocket18.Profile = sketch19
pocket18.Type = "UpToFirst"

sketch20 = body.newObject("Sketcher::SketchObject", "Sketch019")
sketch20.AttachmentSupport = (doc.getObject("XY_Plane"), [""])
sketch20.MapMode = "FlatFace"
sketch20.AttachmentOffset = App.Placement(App.Vector(0, 0, 5.9), App.Rotation())
sketch20.addGeometry(Part.Circle(App.Vector(-79.55, -32.5, 0), App.Vector(0, 0, 1), 2.05), False)
sketch20.addConstraint([
    Sketcher.Constraint("Diameter", 0, Q("4.1 mm")),
    Sketcher.Constraint("DistanceY", 0, 3, -1, 1, Q("32.5 mm")),
    Sketcher.Constraint("DistanceX", 0, 3, -1, 1, Q("79.55 mm")),
])
pocket19 = body.newObject("PartDesign::Pocket", "Pocket018")
pocket19.Profile = sketch20
pocket19.Type = "UpToFirst"

sketch21 = body.newObject("Sketcher::SketchObject", "Sketch020")
sketch21.AttachmentSupport = (doc.getObject("XY_Plane"), [""])
sketch21.MapMode = "FlatFace"
sketch21.AttachmentOffset = App.Placement(App.Vector(0, 0, 5.9), App.Rotation())
sketch21.addGeometry(Part.Circle(App.Vector(-79.55, -17.5, 0), App.Vector(0, 0, 1), 2.05), False)
sketch21.addConstraint([
    Sketcher.Constraint("Diameter", 0, Q("4.1 mm")),
    Sketcher.Constraint("DistanceY", 0, 3, -1, 1, Q("17.5 mm")),
    Sketcher.Constraint("DistanceX", 0, 3, -1, 1, Q("79.55 mm")),
])
pocket20 = body.newObject("PartDesign::Pocket", "Pocket019")
pocket20.Profile = sketch21
pocket20.Type = "UpToFirst"

sketch22 = body.newObject("Sketcher::SketchObject", "Sketch021")
sketch22.AttachmentSupport = (doc.getObject("XY_Plane"), [""])
sketch22.MapMode = "FlatFace"
sketch22.AttachmentOffset = App.Placement(App.Vector(0, 0, 5.9), App.Rotation())
sketch22.addGeometry(Part.Circle(App.Vector(-79.55, 17.5, 0), App.Vector(0, 0, 1), 2.05), False)
sketch22.addConstraint([
    Sketcher.Constraint("Diameter", 0, Q("4.1 mm")),
    Sketcher.Constraint("DistanceY", -1, 1, 0, 3, Q("17.5 mm")),
    Sketcher.Constraint("DistanceX", 0, 3, -1, 1, Q("79.55 mm")),
])
pocket21 = body.newObject("PartDesign::Pocket", "Pocket020")
pocket21.Profile = sketch22
pocket21.Type = "UpToFirst"

sketch23 = body.newObject("Sketcher::SketchObject", "Sketch022")
sketch23.AttachmentSupport = (doc.getObject("XY_Plane"), [""])
sketch23.MapMode = "FlatFace"
sketch23.AttachmentOffset = App.Placement(App.Vector(0, 0, 5.9), App.Rotation())
sketch23.addGeometry(Part.Circle(App.Vector(-79.55, 32.5, 0), App.Vector(0, 0, 1), 2.05), False)
sketch23.addConstraint([
    Sketcher.Constraint("Diameter", 0, Q("4.1 mm")),
    Sketcher.Constraint("DistanceY", -1, 1, 0, 3, Q("32.5 mm")),
    Sketcher.Constraint("DistanceX", 0, 3, -1, 1, Q("79.55 mm")),
])
pocket22 = body.newObject("PartDesign::Pocket", "Pocket021")
pocket22.Profile = sketch23
pocket22.Type = "UpToFirst"

doc.recompute()
